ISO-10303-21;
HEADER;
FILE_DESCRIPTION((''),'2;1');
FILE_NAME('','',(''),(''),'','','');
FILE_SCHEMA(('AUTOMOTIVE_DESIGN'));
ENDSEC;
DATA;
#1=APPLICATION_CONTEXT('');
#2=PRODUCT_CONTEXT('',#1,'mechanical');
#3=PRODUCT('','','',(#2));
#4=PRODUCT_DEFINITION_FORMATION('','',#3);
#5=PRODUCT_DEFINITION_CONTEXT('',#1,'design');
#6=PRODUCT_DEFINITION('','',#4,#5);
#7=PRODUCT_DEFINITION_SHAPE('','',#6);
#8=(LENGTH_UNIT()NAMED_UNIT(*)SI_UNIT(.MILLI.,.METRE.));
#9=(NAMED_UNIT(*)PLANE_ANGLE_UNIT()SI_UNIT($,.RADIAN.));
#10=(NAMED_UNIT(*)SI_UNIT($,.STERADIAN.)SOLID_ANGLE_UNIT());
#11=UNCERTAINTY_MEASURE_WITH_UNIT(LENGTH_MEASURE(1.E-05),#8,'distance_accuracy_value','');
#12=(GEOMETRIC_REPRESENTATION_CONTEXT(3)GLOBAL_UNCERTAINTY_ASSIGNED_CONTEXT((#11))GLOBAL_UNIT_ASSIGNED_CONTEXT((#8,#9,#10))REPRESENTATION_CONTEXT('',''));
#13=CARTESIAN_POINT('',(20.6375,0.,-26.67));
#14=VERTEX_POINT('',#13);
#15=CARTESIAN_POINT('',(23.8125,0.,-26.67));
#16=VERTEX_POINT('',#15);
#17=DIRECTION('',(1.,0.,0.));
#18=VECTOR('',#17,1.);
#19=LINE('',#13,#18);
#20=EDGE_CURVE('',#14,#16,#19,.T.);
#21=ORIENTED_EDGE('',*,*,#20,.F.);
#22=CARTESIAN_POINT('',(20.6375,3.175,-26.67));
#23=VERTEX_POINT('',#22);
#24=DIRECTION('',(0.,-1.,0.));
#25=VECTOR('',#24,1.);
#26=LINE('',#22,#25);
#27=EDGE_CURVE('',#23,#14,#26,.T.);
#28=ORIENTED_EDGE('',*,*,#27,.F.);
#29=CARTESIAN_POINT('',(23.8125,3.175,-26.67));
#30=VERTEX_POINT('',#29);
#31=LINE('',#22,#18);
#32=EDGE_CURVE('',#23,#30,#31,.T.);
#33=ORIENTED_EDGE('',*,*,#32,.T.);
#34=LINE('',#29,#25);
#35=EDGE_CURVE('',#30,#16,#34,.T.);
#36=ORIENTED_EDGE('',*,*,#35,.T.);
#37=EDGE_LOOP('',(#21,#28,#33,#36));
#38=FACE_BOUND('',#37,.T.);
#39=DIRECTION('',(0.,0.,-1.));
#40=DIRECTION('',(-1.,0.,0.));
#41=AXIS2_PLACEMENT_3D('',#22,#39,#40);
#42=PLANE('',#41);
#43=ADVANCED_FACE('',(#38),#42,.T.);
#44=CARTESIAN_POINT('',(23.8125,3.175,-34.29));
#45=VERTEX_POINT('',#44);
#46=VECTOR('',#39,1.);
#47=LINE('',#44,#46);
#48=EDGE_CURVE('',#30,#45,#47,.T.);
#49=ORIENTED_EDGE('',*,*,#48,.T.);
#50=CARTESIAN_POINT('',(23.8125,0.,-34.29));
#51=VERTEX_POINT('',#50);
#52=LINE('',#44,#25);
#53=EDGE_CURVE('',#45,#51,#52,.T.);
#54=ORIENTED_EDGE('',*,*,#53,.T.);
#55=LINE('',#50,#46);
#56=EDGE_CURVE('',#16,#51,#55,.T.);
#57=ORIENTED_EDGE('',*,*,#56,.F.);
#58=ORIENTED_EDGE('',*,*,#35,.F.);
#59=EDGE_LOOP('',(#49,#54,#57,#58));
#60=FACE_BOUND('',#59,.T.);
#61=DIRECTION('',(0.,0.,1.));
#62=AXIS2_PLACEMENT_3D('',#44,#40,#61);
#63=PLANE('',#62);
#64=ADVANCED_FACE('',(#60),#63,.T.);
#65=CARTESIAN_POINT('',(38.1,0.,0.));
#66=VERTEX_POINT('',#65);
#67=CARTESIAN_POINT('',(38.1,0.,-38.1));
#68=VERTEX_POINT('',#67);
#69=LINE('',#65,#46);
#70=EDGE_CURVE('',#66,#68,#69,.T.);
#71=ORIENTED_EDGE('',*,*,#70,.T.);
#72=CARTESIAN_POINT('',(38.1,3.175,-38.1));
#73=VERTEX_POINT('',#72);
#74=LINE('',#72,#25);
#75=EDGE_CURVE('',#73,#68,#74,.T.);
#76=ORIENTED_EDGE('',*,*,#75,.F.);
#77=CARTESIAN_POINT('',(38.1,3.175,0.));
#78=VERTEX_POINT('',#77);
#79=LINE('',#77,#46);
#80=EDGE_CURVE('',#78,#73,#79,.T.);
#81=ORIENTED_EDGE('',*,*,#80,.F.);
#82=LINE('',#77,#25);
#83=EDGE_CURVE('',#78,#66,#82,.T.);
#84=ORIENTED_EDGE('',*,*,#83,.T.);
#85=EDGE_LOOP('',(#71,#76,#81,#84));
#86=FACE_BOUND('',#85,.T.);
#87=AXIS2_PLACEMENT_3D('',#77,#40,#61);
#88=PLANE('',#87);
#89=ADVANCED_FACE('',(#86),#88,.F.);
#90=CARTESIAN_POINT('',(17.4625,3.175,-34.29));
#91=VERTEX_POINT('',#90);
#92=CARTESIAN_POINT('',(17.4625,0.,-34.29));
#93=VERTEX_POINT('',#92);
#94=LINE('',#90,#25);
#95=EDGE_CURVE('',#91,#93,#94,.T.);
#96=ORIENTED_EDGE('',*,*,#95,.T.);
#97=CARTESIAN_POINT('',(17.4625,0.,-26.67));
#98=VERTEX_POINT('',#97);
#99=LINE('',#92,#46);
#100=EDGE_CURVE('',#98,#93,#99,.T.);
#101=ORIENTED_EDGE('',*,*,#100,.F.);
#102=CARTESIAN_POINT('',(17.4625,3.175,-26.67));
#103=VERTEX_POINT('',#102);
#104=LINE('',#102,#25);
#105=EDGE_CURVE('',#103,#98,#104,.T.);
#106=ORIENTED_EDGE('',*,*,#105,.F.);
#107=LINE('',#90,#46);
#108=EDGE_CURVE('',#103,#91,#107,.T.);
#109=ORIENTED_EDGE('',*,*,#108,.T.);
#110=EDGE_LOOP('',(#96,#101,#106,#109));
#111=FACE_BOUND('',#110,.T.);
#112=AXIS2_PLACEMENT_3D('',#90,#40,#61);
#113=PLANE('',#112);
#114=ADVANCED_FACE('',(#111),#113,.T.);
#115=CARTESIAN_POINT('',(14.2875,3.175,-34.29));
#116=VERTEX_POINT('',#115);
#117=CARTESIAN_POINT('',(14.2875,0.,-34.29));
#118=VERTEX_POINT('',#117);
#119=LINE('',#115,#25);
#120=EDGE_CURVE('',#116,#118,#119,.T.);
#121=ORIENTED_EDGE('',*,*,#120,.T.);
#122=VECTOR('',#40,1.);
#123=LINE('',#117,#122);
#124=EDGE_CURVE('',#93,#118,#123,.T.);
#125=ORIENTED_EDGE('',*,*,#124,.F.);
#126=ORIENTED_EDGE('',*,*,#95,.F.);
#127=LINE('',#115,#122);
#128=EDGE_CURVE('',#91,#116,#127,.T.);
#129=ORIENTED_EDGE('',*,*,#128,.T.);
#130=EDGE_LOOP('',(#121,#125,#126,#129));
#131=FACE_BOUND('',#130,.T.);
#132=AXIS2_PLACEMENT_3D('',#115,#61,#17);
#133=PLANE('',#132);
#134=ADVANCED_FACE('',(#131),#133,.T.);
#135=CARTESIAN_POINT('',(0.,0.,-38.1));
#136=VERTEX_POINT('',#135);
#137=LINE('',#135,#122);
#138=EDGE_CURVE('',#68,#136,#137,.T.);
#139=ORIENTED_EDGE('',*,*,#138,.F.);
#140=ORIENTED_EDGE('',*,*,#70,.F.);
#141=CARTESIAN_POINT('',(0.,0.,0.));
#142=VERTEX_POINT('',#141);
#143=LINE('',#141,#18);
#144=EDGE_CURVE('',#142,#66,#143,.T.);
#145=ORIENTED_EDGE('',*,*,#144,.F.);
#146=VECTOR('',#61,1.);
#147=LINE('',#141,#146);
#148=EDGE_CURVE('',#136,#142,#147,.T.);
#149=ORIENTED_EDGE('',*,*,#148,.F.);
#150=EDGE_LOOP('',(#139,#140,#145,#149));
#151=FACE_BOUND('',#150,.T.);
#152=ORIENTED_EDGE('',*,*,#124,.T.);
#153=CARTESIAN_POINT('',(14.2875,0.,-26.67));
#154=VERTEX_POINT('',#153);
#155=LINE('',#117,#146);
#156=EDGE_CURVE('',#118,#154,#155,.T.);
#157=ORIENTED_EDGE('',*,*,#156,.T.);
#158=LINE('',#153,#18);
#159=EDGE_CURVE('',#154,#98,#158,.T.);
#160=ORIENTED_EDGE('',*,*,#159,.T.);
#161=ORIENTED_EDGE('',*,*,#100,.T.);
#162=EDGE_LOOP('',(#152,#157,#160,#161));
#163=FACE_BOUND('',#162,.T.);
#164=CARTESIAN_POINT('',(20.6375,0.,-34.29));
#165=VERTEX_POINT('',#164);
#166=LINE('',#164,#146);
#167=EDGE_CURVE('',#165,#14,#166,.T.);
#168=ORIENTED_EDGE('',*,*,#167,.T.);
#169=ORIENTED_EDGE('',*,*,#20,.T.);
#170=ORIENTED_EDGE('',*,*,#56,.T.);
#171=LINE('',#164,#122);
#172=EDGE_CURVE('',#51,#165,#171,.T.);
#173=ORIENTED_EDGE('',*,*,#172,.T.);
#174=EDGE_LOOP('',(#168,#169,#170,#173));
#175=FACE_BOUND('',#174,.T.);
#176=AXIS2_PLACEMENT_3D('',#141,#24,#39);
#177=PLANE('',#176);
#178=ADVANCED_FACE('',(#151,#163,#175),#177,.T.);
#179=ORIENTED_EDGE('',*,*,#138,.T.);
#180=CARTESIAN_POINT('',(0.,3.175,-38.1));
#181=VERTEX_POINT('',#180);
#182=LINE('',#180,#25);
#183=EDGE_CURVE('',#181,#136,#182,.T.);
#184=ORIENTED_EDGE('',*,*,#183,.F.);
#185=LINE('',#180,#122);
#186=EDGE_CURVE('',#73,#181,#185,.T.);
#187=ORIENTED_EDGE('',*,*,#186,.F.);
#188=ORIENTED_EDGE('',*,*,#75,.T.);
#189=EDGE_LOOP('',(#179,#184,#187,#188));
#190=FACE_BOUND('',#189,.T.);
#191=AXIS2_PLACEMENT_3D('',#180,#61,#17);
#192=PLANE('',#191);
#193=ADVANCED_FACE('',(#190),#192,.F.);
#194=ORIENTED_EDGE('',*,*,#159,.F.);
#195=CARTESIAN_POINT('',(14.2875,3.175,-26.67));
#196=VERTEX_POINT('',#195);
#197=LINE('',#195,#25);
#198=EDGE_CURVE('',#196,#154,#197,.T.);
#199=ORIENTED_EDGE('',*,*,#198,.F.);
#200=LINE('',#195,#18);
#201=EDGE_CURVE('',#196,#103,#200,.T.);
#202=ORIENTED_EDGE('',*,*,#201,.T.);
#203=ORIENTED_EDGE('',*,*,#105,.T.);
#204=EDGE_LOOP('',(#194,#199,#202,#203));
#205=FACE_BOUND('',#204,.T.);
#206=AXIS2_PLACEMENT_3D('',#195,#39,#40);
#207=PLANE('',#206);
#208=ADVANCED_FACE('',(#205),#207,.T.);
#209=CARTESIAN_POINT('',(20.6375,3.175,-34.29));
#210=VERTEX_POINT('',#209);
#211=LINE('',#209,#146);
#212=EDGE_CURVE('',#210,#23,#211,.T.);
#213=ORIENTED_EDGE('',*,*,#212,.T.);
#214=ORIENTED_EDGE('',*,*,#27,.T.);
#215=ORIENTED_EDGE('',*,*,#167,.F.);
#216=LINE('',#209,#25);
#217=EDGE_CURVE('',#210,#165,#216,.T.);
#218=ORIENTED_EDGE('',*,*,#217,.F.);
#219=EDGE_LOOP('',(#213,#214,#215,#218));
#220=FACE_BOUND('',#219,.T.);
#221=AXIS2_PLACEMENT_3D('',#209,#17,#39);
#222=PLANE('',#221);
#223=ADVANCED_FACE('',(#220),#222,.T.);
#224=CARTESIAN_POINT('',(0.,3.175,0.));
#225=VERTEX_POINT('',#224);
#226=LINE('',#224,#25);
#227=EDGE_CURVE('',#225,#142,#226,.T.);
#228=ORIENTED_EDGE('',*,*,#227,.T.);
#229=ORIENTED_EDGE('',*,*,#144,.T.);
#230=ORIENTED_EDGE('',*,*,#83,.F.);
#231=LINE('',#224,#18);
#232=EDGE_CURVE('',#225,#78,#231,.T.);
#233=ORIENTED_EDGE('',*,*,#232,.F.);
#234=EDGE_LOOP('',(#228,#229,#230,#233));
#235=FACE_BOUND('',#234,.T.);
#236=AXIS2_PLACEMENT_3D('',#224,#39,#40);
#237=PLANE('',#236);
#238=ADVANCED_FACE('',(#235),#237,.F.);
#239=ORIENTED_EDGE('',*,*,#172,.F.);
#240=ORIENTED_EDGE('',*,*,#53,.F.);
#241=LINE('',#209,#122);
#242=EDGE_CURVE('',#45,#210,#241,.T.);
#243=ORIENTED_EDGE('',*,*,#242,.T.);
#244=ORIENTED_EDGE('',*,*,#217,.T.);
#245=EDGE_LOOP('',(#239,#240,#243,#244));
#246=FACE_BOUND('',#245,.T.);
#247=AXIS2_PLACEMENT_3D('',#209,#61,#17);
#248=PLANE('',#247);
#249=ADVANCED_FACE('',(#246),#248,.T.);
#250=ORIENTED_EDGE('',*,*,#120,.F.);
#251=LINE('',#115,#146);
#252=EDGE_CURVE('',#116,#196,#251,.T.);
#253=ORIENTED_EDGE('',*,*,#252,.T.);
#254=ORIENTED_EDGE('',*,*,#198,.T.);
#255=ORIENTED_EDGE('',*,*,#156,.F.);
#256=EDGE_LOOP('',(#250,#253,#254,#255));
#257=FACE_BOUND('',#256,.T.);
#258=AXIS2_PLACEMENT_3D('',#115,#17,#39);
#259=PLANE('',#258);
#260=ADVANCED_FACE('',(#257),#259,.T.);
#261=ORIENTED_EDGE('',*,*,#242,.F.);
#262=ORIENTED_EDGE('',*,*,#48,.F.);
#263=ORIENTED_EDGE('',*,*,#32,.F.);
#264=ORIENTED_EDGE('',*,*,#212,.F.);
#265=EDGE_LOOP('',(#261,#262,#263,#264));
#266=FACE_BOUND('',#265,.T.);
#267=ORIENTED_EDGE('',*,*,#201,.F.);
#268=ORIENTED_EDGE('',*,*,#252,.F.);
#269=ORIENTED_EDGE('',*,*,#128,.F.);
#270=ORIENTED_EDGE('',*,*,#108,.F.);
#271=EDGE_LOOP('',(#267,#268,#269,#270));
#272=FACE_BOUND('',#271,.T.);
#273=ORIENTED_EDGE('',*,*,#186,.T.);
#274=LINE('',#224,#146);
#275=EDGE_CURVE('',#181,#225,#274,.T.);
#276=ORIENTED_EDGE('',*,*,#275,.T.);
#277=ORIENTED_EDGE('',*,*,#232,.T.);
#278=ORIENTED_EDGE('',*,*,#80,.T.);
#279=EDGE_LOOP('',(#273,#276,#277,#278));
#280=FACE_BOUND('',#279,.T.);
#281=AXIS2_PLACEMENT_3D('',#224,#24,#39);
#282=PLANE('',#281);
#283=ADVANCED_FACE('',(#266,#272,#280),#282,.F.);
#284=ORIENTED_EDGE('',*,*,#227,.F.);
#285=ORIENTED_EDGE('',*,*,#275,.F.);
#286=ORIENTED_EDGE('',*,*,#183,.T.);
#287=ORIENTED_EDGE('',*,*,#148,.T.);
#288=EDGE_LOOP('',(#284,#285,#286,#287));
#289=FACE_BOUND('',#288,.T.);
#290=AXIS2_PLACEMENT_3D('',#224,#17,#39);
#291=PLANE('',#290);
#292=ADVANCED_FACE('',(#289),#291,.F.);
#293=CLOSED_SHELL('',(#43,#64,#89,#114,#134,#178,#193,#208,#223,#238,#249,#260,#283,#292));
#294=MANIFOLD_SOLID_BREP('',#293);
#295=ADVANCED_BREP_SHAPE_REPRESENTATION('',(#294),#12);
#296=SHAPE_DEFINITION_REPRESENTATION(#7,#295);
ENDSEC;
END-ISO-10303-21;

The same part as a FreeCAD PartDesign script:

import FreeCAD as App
import Part
import Sketcher
from FreeCAD import Vector
Q = App.Units.Quantity

doc = App.newDocument("Part")
body = doc.addObject("PartDesign::Body", "Body")

# Sketch on XZ plane
sketch1 = body.newObject("Sketcher::SketchObject", "Sketch")
sketch1.AttachmentSupport = (doc.getObject("XZ_Plane"), [""])
sketch1.MapMode = "FlatFace"
sketch1.addGeometry([
    Part.LineSegment(Vector(0, -38.1, 0), Vector(0, 0, 0)),  # 0
    Part.LineSegment(Vector(0, 0, 0), Vector(38.1, 0, 0)),  # 1
    Part.LineSegment(Vector(38.1, 0, 0), Vector(38.1, -38.1, 0)),  # 2
    Part.LineSegment(Vector(38.1, -38.1, 0), Vector(0, -38.1, 0)),  # 3
    Part.LineSegment(Vector(17.4625, -26.67, 0), Vector(14.2875, -26.67, 0)),  # 4
    Part.LineSegment(Vector(14.2875, -26.67, 0), Vector(14.2875, -34.29, 0)),  # 5
    Part.LineSegment(Vector(14.2875, -34.29, 0), Vector(17.4625, -34.29, 0)),  # 6
    Part.LineSegment(Vector(17.4625, -34.29, 0), Vector(17.4625, -26.67, 0)),  # 7
    Part.LineSegment(Vector(23.8125, -26.67, 0), Vector(20.6375, -26.67, 0)),  # 8
    Part.LineSegment(Vector(20.6375, -26.67, 0), Vector(20.6375, -34.29, 0)),  # 9
    Part.LineSegment(Vector(20.6375, -34.29, 0), Vector(23.8125, -34.29, 0)),  # 10
    Part.LineSegment(Vector(23.8125, -34.29, 0), Vector(23.8125, -26.67, 0)),  # 11
], False)
sketch1.addConstraint([
    Sketcher.Constraint("Coincident", 0, 2, 1, 1),
    Sketcher.Constraint("Coincident", 1, 2, 2, 1),
    Sketcher.Constraint("Coincident", 2, 2, 3, 1),
    Sketcher.Constraint("Coincident", 3, 2, 0, 1),
    Sketcher.Constraint("Coincident", 4, 2, 5, 1),
    Sketcher.Constraint("Coincident", 5, 2, 6, 1),
    Sketcher.Constraint("Coincident", 6, 2, 7, 1),
    Sketcher.Constraint("Coincident", 7, 2, 4, 1),
    Sketcher.Constraint("Coincident", 8, 2, 9, 1),
    Sketcher.Constraint("Coincident", 9, 2, 10, 1),
    Sketcher.Constraint("Coincident", 10, 2, 11, 1),
    Sketcher.Constraint("Coincident", 11, 2, 8, 1),
    Sketcher.Constraint("Vertical", 0),
    Sketcher.Constraint("Horizontal", 1),
    Sketcher.Constraint("Vertical", 2),
    Sketcher.Constraint("Horizontal", 3),
    Sketcher.Constraint("Horizontal", 4),
    Sketcher.Constraint("Vertical", 5),
    Sketcher.Constraint("Horizontal", 6),
    Sketcher.Constraint("Vertical", 7),
    Sketcher.Constraint("Horizontal", 8),
    Sketcher.Constraint("Vertical", 9),
    Sketcher.Constraint("Horizontal", 10),
    Sketcher.Constraint("Vertical", 11),
    Sketcher.Constraint("Coincident", 0, 2, -1, 1),
    Sketcher.Constraint("Horizontal", 7, 2, 8, 2),
    Sketcher.Constraint("Horizontal", 6, 2, 9, 2),
    Sketcher.Constraint("Equal", 6, 8),
    Sketcher.Constraint("Equal", 3, 0),
    Sketcher.Constraint("DistanceX", 1, 1, 1, 2, Q("1.5 in")),
    Sketcher.Constraint("DistanceY", 5, 2, 5, 1, Q("0.3 in")),
    Sketcher.Constraint("DistanceX", 4, 2, 4, 1, Q("0.125 in")),
    Sketcher.Constraint("DistanceY", 4, 2, -1, 1, Q("1.05 in")),
    Sketcher.Constraint("DistanceX", 4, 2, 8, 2, Q("0.25 in")),
    Sketcher.Constraint("DistanceX", -1, 1, 4, 2, Q("0.5625 in")),
])
pad1 = body.newObject("PartDesign::Pad", "Pad")
pad1.Profile = sketch1
pad1.Length = Q("0.125 in")
pad1.Reversed = True

doc.recompute()
